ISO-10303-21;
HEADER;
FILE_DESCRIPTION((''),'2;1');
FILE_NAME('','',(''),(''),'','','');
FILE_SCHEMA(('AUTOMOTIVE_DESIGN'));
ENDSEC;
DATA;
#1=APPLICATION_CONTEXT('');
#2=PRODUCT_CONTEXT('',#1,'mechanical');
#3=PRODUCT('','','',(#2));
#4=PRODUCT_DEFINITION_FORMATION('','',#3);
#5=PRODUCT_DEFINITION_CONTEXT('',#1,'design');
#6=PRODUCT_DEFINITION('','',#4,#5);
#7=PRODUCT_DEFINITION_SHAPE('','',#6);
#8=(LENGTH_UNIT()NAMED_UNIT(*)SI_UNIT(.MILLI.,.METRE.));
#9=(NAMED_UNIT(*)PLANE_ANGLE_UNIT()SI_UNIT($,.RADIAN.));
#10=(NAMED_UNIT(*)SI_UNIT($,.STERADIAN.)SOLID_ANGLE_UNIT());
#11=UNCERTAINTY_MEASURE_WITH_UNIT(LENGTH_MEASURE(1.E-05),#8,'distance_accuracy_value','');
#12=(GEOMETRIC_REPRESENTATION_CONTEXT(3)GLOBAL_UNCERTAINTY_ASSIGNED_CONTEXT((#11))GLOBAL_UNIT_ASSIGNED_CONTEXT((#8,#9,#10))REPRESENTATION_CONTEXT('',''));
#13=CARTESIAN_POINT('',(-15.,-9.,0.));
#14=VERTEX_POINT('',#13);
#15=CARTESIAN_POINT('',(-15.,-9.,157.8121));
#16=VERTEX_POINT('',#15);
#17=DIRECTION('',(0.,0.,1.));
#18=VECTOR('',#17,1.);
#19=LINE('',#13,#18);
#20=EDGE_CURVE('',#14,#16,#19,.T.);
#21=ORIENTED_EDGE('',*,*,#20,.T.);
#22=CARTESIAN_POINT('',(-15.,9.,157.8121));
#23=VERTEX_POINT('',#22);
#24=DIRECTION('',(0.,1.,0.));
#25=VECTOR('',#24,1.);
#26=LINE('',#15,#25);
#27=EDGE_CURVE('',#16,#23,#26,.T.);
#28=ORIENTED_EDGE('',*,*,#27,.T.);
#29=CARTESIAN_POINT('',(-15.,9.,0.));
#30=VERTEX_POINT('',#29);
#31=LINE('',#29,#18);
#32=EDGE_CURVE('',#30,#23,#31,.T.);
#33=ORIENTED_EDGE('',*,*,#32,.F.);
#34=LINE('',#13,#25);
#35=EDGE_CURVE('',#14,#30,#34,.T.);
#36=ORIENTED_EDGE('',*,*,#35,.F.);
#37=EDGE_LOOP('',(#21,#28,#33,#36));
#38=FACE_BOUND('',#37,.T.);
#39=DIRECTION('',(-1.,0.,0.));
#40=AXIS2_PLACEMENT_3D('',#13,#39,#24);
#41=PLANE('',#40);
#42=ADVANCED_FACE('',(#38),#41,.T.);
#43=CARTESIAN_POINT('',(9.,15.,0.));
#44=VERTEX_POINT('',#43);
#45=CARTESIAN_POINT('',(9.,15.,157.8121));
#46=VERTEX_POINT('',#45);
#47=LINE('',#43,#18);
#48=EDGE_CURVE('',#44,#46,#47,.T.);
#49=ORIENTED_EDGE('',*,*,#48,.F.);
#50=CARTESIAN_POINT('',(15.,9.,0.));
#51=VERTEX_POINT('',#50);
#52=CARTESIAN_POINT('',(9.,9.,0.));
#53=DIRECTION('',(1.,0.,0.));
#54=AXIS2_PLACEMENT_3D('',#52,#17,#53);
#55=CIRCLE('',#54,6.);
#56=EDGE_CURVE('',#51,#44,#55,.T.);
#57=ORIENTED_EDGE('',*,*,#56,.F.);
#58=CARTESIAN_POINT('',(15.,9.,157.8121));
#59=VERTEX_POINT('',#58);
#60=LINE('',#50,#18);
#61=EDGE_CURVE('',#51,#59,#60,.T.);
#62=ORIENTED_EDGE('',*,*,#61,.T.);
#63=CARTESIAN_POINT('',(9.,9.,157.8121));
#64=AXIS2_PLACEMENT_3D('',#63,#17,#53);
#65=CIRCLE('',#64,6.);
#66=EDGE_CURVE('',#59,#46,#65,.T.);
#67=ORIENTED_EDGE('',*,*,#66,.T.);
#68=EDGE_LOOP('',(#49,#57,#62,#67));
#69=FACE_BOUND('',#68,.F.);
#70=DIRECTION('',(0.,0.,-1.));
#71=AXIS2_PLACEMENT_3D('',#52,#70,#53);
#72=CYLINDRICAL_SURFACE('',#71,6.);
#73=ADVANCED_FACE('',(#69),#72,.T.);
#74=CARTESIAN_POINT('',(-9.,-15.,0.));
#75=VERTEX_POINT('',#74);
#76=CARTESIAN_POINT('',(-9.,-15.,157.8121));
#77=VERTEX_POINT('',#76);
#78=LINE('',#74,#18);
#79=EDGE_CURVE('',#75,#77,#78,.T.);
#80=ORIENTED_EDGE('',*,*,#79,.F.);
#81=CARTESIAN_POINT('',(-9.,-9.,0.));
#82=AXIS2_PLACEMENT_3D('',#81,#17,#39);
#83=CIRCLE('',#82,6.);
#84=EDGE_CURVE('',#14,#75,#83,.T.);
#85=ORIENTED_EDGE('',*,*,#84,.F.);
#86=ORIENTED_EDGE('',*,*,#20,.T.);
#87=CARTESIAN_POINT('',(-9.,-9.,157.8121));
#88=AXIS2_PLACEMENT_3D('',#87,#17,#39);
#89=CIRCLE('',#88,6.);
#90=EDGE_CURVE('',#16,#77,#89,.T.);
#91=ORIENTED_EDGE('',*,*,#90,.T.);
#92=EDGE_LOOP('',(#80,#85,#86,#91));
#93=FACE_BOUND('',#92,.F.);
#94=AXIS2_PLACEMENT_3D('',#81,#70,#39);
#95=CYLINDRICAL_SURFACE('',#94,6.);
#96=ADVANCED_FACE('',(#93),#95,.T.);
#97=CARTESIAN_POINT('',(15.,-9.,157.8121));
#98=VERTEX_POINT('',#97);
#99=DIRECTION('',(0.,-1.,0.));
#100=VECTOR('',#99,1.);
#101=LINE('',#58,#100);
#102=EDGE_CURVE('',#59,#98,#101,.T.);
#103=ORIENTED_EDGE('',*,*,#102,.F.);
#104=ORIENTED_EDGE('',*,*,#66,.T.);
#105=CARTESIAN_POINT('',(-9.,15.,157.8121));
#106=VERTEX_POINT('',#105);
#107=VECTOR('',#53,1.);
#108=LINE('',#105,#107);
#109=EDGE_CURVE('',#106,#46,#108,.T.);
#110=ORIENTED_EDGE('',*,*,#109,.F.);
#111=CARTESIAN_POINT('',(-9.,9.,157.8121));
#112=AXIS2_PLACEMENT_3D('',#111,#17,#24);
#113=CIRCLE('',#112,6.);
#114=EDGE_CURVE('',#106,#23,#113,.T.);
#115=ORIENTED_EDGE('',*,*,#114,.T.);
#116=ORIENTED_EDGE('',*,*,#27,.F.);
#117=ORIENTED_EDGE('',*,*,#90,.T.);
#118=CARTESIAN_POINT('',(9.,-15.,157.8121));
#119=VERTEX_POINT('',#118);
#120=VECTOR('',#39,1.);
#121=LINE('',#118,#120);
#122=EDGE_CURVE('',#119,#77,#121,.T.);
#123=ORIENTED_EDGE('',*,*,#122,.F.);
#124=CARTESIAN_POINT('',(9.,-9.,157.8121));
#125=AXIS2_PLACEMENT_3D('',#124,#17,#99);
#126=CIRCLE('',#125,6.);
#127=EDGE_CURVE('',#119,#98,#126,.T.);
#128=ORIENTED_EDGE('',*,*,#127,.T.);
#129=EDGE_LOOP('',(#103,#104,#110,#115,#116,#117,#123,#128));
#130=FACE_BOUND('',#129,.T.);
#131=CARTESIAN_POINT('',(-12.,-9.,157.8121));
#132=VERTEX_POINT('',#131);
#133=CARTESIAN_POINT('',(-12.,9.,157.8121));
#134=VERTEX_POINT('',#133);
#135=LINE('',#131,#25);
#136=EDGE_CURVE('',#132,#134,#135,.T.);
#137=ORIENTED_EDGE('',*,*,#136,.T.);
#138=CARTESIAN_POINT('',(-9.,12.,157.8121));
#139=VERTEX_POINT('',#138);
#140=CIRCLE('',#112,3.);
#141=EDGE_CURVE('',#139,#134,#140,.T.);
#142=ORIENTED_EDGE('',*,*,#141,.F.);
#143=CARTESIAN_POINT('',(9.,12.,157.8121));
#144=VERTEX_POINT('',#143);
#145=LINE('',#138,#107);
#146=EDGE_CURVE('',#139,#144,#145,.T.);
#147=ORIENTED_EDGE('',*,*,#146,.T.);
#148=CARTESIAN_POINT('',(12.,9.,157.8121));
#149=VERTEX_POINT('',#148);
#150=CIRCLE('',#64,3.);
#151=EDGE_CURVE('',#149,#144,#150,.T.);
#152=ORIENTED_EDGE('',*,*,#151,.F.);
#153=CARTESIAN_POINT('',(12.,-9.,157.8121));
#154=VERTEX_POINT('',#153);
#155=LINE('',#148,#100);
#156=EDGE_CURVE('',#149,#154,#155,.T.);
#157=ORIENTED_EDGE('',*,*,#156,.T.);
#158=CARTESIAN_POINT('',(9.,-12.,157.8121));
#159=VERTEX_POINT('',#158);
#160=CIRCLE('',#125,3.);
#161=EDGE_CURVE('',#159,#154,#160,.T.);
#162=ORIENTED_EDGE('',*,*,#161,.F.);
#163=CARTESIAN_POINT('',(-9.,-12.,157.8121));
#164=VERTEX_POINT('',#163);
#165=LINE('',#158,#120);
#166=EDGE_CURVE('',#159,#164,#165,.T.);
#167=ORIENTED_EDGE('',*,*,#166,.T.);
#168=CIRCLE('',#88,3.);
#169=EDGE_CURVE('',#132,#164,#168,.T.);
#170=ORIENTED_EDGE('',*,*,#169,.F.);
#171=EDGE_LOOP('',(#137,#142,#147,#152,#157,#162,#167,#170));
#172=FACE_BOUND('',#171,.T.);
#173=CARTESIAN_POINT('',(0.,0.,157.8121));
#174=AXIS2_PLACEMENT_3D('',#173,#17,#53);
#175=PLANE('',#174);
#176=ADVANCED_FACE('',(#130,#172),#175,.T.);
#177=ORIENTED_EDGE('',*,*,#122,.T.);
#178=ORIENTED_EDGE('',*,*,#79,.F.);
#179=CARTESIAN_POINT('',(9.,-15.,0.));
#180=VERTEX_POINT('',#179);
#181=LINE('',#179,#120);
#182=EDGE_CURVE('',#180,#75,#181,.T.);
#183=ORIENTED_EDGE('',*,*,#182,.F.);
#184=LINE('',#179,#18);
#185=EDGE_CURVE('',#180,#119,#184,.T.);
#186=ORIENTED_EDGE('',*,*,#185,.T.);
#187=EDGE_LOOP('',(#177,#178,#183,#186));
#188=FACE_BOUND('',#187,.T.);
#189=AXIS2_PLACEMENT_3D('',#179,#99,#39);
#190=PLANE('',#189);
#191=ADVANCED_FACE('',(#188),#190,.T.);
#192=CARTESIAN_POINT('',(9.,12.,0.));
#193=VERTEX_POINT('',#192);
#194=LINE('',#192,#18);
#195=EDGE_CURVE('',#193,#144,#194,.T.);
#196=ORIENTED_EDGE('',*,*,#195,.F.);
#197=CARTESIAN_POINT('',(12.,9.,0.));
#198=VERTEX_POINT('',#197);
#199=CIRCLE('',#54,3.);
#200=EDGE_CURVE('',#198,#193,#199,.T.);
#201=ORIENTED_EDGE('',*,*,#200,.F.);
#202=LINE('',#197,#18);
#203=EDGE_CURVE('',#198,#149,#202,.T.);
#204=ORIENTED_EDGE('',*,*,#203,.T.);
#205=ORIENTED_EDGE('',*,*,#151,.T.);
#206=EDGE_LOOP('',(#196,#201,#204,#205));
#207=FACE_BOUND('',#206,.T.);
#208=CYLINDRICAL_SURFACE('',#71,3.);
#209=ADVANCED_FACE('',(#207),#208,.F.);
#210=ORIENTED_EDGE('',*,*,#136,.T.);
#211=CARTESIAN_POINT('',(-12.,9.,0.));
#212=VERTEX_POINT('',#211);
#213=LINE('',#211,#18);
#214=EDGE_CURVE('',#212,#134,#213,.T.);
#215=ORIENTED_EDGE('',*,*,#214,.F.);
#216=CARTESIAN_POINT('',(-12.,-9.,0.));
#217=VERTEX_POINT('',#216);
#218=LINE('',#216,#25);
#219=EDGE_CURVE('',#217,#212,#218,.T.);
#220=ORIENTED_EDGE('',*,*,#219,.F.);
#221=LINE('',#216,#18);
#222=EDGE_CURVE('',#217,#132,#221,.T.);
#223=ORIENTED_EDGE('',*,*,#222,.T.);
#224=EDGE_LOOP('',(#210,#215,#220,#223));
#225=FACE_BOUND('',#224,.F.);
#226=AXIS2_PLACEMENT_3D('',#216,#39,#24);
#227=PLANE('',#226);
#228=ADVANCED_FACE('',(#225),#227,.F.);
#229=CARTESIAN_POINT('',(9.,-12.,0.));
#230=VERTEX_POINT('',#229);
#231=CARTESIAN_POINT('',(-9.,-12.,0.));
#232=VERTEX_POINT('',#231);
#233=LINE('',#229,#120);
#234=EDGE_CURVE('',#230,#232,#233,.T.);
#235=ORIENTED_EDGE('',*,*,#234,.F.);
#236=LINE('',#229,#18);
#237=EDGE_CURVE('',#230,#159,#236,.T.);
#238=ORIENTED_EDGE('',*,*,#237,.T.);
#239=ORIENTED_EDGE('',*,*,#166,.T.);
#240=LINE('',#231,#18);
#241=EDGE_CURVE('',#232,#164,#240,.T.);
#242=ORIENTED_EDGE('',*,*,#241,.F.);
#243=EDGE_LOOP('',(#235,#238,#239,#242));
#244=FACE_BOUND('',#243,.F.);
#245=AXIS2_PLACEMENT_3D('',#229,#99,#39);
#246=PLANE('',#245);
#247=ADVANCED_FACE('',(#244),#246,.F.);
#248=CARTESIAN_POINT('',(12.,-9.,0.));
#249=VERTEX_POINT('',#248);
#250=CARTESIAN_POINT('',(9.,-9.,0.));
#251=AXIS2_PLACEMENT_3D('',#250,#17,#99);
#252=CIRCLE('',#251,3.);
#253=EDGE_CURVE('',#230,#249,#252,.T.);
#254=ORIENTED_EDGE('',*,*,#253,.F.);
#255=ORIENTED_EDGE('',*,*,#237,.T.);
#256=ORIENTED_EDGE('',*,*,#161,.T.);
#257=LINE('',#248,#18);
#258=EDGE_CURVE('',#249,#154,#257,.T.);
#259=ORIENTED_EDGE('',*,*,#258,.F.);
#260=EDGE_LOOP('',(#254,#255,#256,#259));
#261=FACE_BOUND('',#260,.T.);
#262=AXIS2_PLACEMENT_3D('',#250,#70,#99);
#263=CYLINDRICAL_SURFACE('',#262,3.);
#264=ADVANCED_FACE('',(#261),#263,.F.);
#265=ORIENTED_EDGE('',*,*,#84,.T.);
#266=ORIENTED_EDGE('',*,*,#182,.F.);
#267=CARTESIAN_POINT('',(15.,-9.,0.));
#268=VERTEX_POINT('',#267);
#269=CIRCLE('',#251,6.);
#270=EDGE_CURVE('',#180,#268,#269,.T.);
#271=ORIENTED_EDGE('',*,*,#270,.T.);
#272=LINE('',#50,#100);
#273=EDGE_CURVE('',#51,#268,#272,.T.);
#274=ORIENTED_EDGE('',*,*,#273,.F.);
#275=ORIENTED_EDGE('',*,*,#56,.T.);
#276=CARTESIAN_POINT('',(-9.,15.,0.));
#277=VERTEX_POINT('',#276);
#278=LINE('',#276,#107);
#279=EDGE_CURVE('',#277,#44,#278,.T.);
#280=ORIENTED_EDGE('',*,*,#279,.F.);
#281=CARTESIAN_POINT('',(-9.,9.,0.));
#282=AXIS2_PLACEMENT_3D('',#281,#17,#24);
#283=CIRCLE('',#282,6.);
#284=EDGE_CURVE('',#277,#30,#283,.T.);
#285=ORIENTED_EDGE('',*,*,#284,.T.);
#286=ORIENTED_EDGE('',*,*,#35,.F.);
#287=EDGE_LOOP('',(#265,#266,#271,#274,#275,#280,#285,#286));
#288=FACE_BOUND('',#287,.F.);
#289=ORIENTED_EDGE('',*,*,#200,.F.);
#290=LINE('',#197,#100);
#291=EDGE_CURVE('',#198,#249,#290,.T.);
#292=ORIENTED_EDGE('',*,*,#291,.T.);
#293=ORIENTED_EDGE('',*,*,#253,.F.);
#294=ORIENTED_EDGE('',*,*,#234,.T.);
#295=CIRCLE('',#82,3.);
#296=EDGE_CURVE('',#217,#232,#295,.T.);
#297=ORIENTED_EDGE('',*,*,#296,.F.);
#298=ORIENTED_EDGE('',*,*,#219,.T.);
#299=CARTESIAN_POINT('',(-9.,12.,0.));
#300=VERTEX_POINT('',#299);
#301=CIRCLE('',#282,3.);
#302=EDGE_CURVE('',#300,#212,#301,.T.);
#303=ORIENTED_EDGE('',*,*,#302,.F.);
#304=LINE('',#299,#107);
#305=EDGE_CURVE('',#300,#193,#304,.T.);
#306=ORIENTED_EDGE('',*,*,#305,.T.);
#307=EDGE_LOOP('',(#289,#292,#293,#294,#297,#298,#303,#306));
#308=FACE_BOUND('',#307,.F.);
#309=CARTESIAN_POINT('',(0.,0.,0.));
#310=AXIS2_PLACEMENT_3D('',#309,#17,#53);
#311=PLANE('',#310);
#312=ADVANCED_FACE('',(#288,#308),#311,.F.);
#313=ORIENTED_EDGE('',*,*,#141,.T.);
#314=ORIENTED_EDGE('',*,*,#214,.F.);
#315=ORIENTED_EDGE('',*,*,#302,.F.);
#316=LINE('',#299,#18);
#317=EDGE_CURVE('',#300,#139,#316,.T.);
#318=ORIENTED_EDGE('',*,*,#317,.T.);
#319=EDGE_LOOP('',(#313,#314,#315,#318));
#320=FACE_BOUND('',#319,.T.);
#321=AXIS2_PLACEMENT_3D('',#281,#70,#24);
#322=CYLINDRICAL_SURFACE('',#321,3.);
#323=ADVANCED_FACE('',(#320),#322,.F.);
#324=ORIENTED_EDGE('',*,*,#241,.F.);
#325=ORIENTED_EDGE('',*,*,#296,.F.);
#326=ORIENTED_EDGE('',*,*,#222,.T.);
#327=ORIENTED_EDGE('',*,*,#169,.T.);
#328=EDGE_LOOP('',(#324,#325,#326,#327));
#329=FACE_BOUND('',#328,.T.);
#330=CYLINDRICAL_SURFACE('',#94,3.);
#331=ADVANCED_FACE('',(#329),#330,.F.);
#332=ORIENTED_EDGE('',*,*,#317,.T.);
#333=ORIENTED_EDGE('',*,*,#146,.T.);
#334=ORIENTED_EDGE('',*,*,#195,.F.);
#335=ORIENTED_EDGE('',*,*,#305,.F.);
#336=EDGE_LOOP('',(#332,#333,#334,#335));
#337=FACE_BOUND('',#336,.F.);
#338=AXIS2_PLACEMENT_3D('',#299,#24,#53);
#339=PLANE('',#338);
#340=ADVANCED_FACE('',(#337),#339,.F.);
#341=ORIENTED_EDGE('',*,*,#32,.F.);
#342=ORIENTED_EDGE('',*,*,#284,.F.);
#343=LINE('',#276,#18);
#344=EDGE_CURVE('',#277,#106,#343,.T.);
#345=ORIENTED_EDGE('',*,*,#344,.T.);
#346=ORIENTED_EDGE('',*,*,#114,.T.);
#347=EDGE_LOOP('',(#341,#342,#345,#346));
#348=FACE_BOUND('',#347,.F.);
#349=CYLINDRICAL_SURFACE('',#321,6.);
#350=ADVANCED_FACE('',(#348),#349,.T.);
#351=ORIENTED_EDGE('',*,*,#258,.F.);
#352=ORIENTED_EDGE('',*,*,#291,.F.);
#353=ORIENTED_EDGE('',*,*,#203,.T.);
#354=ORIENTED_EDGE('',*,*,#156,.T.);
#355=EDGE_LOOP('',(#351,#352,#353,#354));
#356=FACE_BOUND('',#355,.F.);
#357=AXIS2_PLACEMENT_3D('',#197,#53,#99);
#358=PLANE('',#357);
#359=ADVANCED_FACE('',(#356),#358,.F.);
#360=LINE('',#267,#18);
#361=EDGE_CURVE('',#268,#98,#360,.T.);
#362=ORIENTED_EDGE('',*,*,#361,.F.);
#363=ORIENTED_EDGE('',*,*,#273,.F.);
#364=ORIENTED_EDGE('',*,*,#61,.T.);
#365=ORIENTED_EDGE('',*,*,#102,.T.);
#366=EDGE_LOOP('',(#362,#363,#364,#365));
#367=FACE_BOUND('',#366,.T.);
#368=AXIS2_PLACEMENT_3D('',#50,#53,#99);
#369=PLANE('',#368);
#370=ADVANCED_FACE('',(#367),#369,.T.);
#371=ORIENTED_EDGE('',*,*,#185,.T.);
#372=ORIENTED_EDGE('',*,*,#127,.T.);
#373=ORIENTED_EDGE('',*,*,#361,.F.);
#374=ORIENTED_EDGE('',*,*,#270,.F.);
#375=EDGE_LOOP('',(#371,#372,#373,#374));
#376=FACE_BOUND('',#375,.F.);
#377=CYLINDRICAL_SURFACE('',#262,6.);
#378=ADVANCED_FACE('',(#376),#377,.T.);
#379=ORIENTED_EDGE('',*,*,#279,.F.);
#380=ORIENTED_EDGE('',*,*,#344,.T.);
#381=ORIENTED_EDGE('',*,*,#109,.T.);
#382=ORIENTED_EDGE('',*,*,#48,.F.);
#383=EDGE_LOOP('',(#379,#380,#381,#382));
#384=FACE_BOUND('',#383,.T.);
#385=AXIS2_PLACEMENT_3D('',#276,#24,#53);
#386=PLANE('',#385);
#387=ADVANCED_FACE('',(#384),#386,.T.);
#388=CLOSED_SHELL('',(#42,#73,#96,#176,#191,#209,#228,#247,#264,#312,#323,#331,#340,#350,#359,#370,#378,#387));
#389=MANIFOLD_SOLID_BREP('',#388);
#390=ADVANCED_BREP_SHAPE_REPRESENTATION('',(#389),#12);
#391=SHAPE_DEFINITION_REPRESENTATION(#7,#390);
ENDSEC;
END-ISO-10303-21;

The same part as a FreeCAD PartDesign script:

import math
import FreeCAD as App
import Part
import Sketcher
from FreeCAD import Vector
Q = App.Units.Quantity

doc = App.newDocument("Part")
body = doc.addObject("PartDesign::Body", "Body")

sketch1 = body.newObject("Sketcher::SketchObject", "Sketch")
sketch1.AttachmentSupport = (doc.getObject("XY_Plane"), [""])
sketch1.MapMode = "FlatFace"
sketch1.addGeometry([
    Part.LineSegment(Vector(-15, 9, 0), Vector(-15, -9, 0)),
    Part.ArcOfCircle(Part.Circle(Vector(-9, -9, 0), Vector(0, 0, 1), 6), math.radians(180), math.radians(270)),
    Part.LineSegment(Vector(-9, -15, 0), Vector(9, -15, 0)),
    Part.ArcOfCircle(Part.Circle(Vector(9, -9, 0), Vector(0, 0, 1), 6), math.radians(-90), math.radians(0)),
    Part.LineSegment(Vector(15, -9, 0), Vector(15, 9, 0)),
    Part.ArcOfCircle(Part.Circle(Vector(9, 9, 0), Vector(0, 0, 1), 6), math.radians(0), math.radians(90)),
    Part.LineSegment(Vector(9, 15, 0), Vector(-9, 15, 0)),
    Part.ArcOfCircle(Part.Circle(Vector(-9, 9, 0), Vector(0, 0, 1), 6), math.radians(90), math.radians(180)),
    Part.ArcOfCircle(Part.Circle(Vector(-9, 9, 0), Vector(0, 0, 1), 3), math.radians(90), math.radians(180)),
    Part.LineSegment(Vector(-9, 12, 0), Vector(9, 12, 0)),
    Part.ArcOfCircle(Part.Circle(Vector(9, 9, 0), Vector(0, 0, 1), 3), math.radians(0), math.radians(90)),
    Part.LineSegment(Vector(12, 9, 0), Vector(12, -9, 0)),
    Part.ArcOfCircle(Part.Circle(Vector(9, -9, 0), Vector(0, 0, 1), 3), math.radians(-90), math.radians(0)),
    Part.LineSegment(Vector(9, -12, 0), Vector(-9, -12, 0)),
    Part.ArcOfCircle(Part.Circle(Vector(-9, -9, 0), Vector(0, 0, 1), 3), math.radians(180), math.radians(270)),
    Part.LineSegment(Vector(-12, -9, 0), Vector(-12, 9, 0)),
], False)
sketch1.addConstraint([
    Sketcher.Constraint("Tangent", 0, 2, 1, 1),
    Sketcher.Constraint("Tangent", 1, 2, 2, 1),
    Sketcher.Constraint("Tangent", 2, 2, 3, 1),
    Sketcher.Constraint("Tangent", 3, 2, 4, 1),
    Sketcher.Constraint("Tangent", 4, 2, 5, 1),
    Sketcher.Constraint("Tangent", 5, 2, 6, 1),
    Sketcher.Constraint("Tangent", 6, 2, 7, 1),
    Sketcher.Constraint("Tangent", 7, 2, 0, 1),
    Sketcher.Constraint("Tangent", 8, 1, 9, 1),
    Sketcher.Constraint("Tangent", 9, 2, 10, 2),
    Sketcher.Constraint("Tangent", 10, 1, 11, 1),
    Sketcher.Constraint("Tangent", 11, 2, 12, 2),
    Sketcher.Constraint("Tangent", 12, 1, 13, 1),
    Sketcher.Constraint("Tangent", 13, 2, 14, 2),
    Sketcher.Constraint("Tangent", 14, 1, 15, 1),
    Sketcher.Constraint("Tangent", 15, 2, 8, 2),
    Sketcher.Constraint("Vertical", 0),
    Sketcher.Constraint("Horizontal", 2),
    Sketcher.Constraint("Vertical", 4),
    Sketcher.Constraint("Horizontal", 6),
    Sketcher.Constraint("Horizontal", 9),
    Sketcher.Constraint("Vertical", 11),
    Sketcher.Constraint("Horizontal", 13),
    Sketcher.Constraint("Vertical", 15),
    Sketcher.Constraint("Coincident", 8, 3, 7, 3),
    Sketcher.Constraint("Coincident", 10, 3, 5, 3),
    Sketcher.Constraint("Coincident", 12, 3, 3, 3),
    Sketcher.Constraint("Equal", 1, 3),
    Sketcher.Constraint("Equal", 3, 5),
    Sketcher.Constraint("Equal", 5, 7),
    Sketcher.Constraint("Equal", 12, 14),
    Sketcher.Constraint("Symmetric", 1, 3, 5, 3, -1, 1),
    Sketcher.Constraint("Equal", 13, 0),
    Sketcher.Constraint("Radius", 1, Q("6 mm")),
    Sketcher.Constraint("Radius", 8, Q("3 mm")),
    Sketcher.Constraint("DistanceX", 0, 2, -1, 1, Q("15 mm")),
])
pad1 = body.newObject("PartDesign::Pad", "Pad")
pad1.Profile = sketch1
pad1.Length = 157.8121

doc.recompute()
